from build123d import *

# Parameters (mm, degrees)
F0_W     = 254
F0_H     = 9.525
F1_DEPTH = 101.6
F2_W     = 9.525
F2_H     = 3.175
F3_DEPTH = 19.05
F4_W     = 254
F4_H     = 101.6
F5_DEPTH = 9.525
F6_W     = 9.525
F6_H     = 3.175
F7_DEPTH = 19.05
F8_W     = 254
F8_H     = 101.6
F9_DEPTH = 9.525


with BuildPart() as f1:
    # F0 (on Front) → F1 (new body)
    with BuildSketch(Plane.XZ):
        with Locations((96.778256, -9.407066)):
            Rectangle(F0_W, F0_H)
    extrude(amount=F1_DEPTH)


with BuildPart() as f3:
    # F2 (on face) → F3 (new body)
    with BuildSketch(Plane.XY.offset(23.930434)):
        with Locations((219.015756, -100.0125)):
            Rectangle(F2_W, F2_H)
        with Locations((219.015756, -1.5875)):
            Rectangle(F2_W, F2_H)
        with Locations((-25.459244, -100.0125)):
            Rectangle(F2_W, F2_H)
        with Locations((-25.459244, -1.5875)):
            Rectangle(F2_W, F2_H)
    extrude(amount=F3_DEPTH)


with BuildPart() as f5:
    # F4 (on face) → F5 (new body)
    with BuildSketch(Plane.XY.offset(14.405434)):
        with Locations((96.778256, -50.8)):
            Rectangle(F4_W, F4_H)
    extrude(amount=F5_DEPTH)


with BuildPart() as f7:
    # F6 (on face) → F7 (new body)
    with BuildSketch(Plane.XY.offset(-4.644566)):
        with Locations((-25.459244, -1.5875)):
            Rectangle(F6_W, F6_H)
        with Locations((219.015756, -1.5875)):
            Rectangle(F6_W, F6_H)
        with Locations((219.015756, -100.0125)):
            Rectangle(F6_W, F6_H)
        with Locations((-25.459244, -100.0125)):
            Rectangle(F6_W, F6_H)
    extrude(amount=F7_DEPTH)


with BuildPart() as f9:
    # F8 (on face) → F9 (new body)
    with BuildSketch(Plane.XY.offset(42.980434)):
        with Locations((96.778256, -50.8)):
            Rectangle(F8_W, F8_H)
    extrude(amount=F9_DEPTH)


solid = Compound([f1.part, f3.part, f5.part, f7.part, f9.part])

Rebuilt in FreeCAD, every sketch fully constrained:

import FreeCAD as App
import Part
import Sketcher
from FreeCAD import Vector
Q = App.Units.Quantity

doc = App.newDocument("Part")
body = doc.addObject("PartDesign::Body", "Body")

# Sketch on XZ plane
sketch1 = body.newObject("Sketcher::SketchObject", "Sketch")
sketch1.AttachmentSupport = (doc.getObject("XZ_Plane"), [""])
sketch1.MapMode = "FlatFace"
sketch1.addGeometry(Part.LineSegment(Vector(-30, -5, 0), Vector(-30, -14, 0)), False)
sketch1.addGeometry(Part.LineSegment(Vector(-30, -14, 0), Vector(224, -14, 0)), False)
sketch1.addGeometry(Part.LineSegment(Vector(224, -14, 0), Vector(224, -5, 0)), False)
sketch1.addGeometry(Part.LineSegment(Vector(224, -5, 0), Vector(-30, -5, 0)), False)
sketch1.addConstraint(Sketcher.Constraint("Coincident", 0, 2, 1, 1))
sketch1.addConstraint(Sketcher.Constraint("Coincident", 1, 2, 2, 1))
sketch1.addConstraint(Sketcher.Constraint("Coincident", 2, 2, 3, 1))
sketch1.addConstraint(Sketcher.Constraint("Coincident", 3, 2, 0, 1))
sketch1.addConstraint(Sketcher.Constraint("Vertical", 0))
sketch1.addConstraint(Sketcher.Constraint("Horizontal", 1))
sketch1.addConstraint(Sketcher.Constraint("Vertical", 2))
sketch1.addConstraint(Sketcher.Constraint("Horizontal", 3))
sketch1.addConstraint(Sketcher.Constraint("DistanceX", 1, 1, 1, 2, Q("10 in")))
sketch1.addConstraint(Sketcher.Constraint("DistanceY", 0, 2, 0, 1, Q("0.375 in")))
sketch1.addConstraint(Sketcher.Constraint("DistanceX", 0, 2, -1, 1, Q("30.221744 mm")))
sketch1.addConstraint(Sketcher.Constraint("DistanceY", 0, 2, -1, 1, Q("14.169566 mm")))
pad1 = body.newObject("PartDesign::Pad", "Pad")
pad1.Profile = sketch1
pad1.Length = Q("4 in")
body2 = doc.addObject("PartDesign::Body", "Body001")
body2.AllowCompound = True

# Sketch on XY plane
sketch2 = body2.newObject("Sketcher::SketchObject", "Sketch001")
sketch2.AttachmentSupport = (doc.getObject("XY_Plane001"), [""])
sketch2.MapMode = "FlatFace"
sketch2.AttachmentOffset = App.Placement(Vector(0, 0, 23.930434), App.Rotation())
sketch2.addGeometry(Part.LineSegment(Vector(214.3, -98.4, 0), Vector(214.3, -101.6, 0)), False)
sketch2.addGeometry(Part.LineSegment(Vector(214.3, -101.6, 0), Vector(223.8, -101.6, 0)), False)
sketch2.addGeometry(Part.LineSegment(Vector(223.8, -101.6, 0), Vector(223.8, -98.4, 0)), False)
sketch2.addGeometry(Part.LineSegment(Vector(223.8, -98.4, 0), Vector(214.3, -98.4, 0)), False)
sketch2.addGeometry(Part.LineSegment(Vector(214.3, 0, 0), Vector(214.3, -3.2, 0)), False)
sketch2.addGeometry(Part.LineSegment(Vector(214.3, -3.2, 0), Vector(223.8, -3.2, 0)), False)
sketch2.addGeometry(Part.LineSegment(Vector(223.8, -3.2, 0), Vector(223.8, 0, 0)), False)
sketch2.addGeometry(Part.LineSegment(Vector(223.8, 0, 0), Vector(214.3, 0, 0)), False)
sketch2.addGeometry(Part.LineSegment(Vector(-30.2, -98.4, 0), Vector(-30.2, -101.6, 0)), False)
sketch2.addGeometry(Part.LineSegment(Vector(-30.2, -101.6, 0), Vector(-20.7, -101.6, 0)), False)
sketch2.addGeometry(Part.LineSegment(Vector(-20.7, -101.6, 0), Vector(-20.7, -98.4, 0)), False)
sketch2.addGeometry(Part.LineSegment(Vector(-20.7, -98.4, 0), Vector(-30.2, -98.4, 0)), False)
sketch2.addGeometry(Part.LineSegment(Vector(-30.2, 0, 0), Vector(-30.2, -3.2, 0)), False)
sketch2.addGeometry(Part.LineSegment(Vector(-30.2, -3.2, 0), Vector(-20.7, -3.2, 0)), False)
sketch2.addGeometry(Part.LineSegment(Vector(-20.7, -3.2, 0), Vector(-20.7, 0, 0)), False)
sketch2.addGeometry(Part.LineSegment(Vector(-20.7, 0, 0), Vector(-30.2, 0, 0)), False)
sketch2.addConstraint(Sketcher.Constraint("Coincident", 0, 2, 1, 1))
sketch2.addConstraint(Sketcher.Constraint("Coincident", 1, 2, 2, 1))
sketch2.addConstraint(Sketcher.Constraint("Coincident", 2, 2, 3, 1))
sketch2.addConstraint(Sketcher.Constraint("Coincident", 3, 2, 0, 1))
sketch2.addConstraint(Sketcher.Constraint("Coincident", 4, 2, 5, 1))
sketch2.addConstraint(Sketcher.Constraint("Coincident", 5, 2, 6, 1))
sketch2.addConstraint(Sketcher.Constraint("Coincident", 6, 2, 7, 1))
sketch2.addConstraint(Sketcher.Constraint("Coincident", 7, 2, 4, 1))
sketch2.addConstraint(Sketcher.Constraint("Coincident", 8, 2, 9, 1))
sketch2.addConstraint(Sketcher.Constraint("Coincident", 9, 2, 10, 1))
sketch2.addConstraint(Sketcher.Constraint("Coincident", 10, 2, 11, 1))
sketch2.addConstraint(Sketcher.Constraint("Coincident", 11, 2, 8, 1))
sketch2.addConstraint(Sketcher.Constraint("Coincident", 12, 2, 13, 1))
sketch2.addConstraint(Sketcher.Constraint("Coincident", 13, 2, 14, 1))
sketch2.addConstraint(Sketcher.Constraint("Coincident", 14, 2, 15, 1))
sketch2.addConstraint(Sketcher.Constraint("Coincident", 15, 2, 12, 1))
sketch2.addConstraint(Sketcher.Constraint("Vertical", 0))
sketch2.addConstraint(Sketcher.Constraint("Horizontal", 1))
sketch2.addConstraint(Sketcher.Constraint("Vertical", 2))
sketch2.addConstraint(Sketcher.Constraint("Horizontal", 3))
sketch2.addConstraint(Sketcher.Constraint("Vertical", 4))
sketch2.addConstraint(Sketcher.Constraint("Horizontal", 5))
sketch2.addConstraint(Sketcher.Constraint("Vertical", 6))
sketch2.addConstraint(Sketcher.Constraint("Horizontal", 7))
sketch2.addConstraint(Sketcher.Constraint("Vertical", 8))
sketch2.addConstraint(Sketcher.Constraint("Horizontal", 9))
sketch2.addConstraint(Sketcher.Constraint("Vertical", 10))
sketch2.addConstraint(Sketcher.Constraint("Horizontal", 11))
sketch2.addConstraint(Sketcher.Constraint("Vertical", 12))
sketch2.addConstraint(Sketcher.Constraint("Horizontal", 13))
sketch2.addConstraint(Sketcher.Constraint("Vertical", 14))
sketch2.addConstraint(Sketcher.Constraint("Horizontal", 15))
sketch2.addConstraint(Sketcher.Constraint("PointOnObject", 6, 2, -1))
sketch2.addConstraint(Sketcher.Constraint("PointOnObject", 14, 2, -1))
sketch2.addConstraint(Sketcher.Constraint("Horizontal", 1, 2, 8, 2))
sketch2.addConstraint(Sketcher.Constraint("Horizontal", 3, 2, 10, 2))
sketch2.addConstraint(Sketcher.Constraint("Horizontal", 5, 2, 12, 2))
sketch2.addConstraint(Sketcher.Constraint("Vertical", 3, 2, 4, 2))
sketch2.addConstraint(Sketcher.Constraint("Vertical", 2, 2, 5, 2))
sketch2.addConstraint(Sketcher.Constraint("Vertical", 11, 2, 12, 2))
sketch2.addConstraint(Sketcher.Constraint("Vertical", 10, 2, 13, 2))
sketch2.addConstraint(Sketcher.Constraint("Equal", 7, 9))
sketch2.addConstraint(Sketcher.Constraint("Equal", 2, 4))
sketch2.addConstraint(Sketcher.Constraint("DistanceY", 0, 2, -1, 1, Q("4 in")))
sketch2.addConstraint(Sketcher.Constraint("DistanceX", 8, 2, 1, 2, Q("10 in")))
sketch2.addConstraint(Sketcher.Constraint("DistanceX", 1, 1, 1, 2, Q("0.375 in")))
sketch2.addConstraint(Sketcher.Constraint("DistanceY", 0, 2, 0, 1, Q("0.125 in")))
sketch2.addConstraint(Sketcher.Constraint("DistanceX", -1, 1, 0, 2, Q("214.253256 mm")))
pad2 = body2.newObject("PartDesign::Pad", "Pad001")
pad2.Profile = sketch2
pad2.Length = Q("0.75 in")
body3 = doc.addObject("PartDesign::Body", "Body002")

# Sketch on XY plane
sketch3 = body3.newObject("Sketcher::SketchObject", "Sketch002")
sketch3.AttachmentSupport = (doc.getObject("XY_Plane002"), [""])
sketch3.MapMode = "FlatFace"
sketch3.AttachmentOffset = App.Placement(Vector(0, 0, 14.405434), App.Rotation())
sketch3.addGeometry(Part.LineSegment(Vector(-30, 0, 0), Vector(-30, -102, 0)), False)
sketch3.addGeometry(Part.LineSegment(Vector(-30, -102, 0), Vector(224, -102, 0)), False)
sketch3.addGeometry(Part.LineSegment(Vector(224, -102, 0), Vector(224, 0, 0)), False)
sketch3.addGeometry(Part.LineSegment(Vector(224, 0, 0), Vector(-30, 0, 0)), False)
sketch3.addConstraint(Sketcher.Constraint("Coincident", 0, 2, 1, 1))
sketch3.addConstraint(Sketcher.Constraint("Coincident", 1, 2, 2, 1))
sketch3.addConstraint(Sketcher.Constraint("Coincident", 2, 2, 3, 1))
sketch3.addConstraint(Sketcher.Constraint("Coincident", 3, 2, 0, 1))
sketch3.addConstraint(Sketcher.Constraint("Vertical", 0))
sketch3.addConstraint(Sketcher.Constraint("Horizontal", 1))
sketch3.addConstraint(Sketcher.Constraint("Vertical", 2))
sketch3.addConstraint(Sketcher.Constraint("Horizontal", 3))
sketch3.addConstraint(Sketcher.Constraint("PointOnObject", 2, 2, -1))
sketch3.addConstraint(Sketcher.Constraint("DistanceX", 1, 1, 1, 2, Q("10 in")))
sketch3.addConstraint(Sketcher.Constraint("DistanceY", 0, 2, 0, 1, Q("4 in")))
sketch3.addConstraint(Sketcher.Constraint("DistanceX", 0, 2, -1, 1, Q("30.221744 mm")))
pad3 = body3.newObject("PartDesign::Pad", "Pad002")
pad3.Profile = sketch3
pad3.Length = Q("0.375 in")
body4 = doc.addObject("PartDesign::Body", "Body003")
body4.AllowCompound = True

# Sketch on XY plane
sketch4 = body4.newObject("Sketcher::SketchObject", "Sketch003")
sketch4.AttachmentSupport = (doc.getObject("XY_Plane003"), [""])
sketch4.MapMode = "FlatFace"
sketch4.AttachmentOffset = App.Placement(Vector(0, 0, -4.644566), App.Rotation())
sketch4.addGeometry(Part.LineSegment(Vector(-30.2, 0, 0), Vector(-30.2, -3.2, 0)), False)
sketch4.addGeometry(Part.LineSegment(Vector(-30.2, -3.2, 0), Vector(-20.7, -3.2, 0)), False)
sketch4.addGeometry(Part.LineSegment(Vector(-20.7, -3.2, 0), Vector(-20.7, 0, 0)), False)
sketch4.addGeometry(Part.LineSegment(Vector(-20.7, 0, 0), Vector(-30.2, 0, 0)), False)
sketch4.addGeometry(Part.LineSegment(Vector(214.3, 0, 0), Vector(214.3, -3.2, 0)), False)
sketch4.addGeometry(Part.LineSegment(Vector(214.3, -3.2, 0), Vector(223.8, -3.2, 0)), False)
sketch4.addGeometry(Part.LineSegment(Vector(223.8, -3.2, 0), Vector(223.8, 0, 0)), False)
sketch4.addGeometry(Part.LineSegment(Vector(223.8, 0, 0), Vector(214.3, 0, 0)), False)
sketch4.addGeometry(Part.LineSegment(Vector(214.3, -98.4, 0), Vector(214.3, -101.6, 0)), False)
sketch4.addGeometry(Part.LineSegment(Vector(214.3, -101.6, 0), Vector(223.8, -101.6, 0)), False)
sketch4.addGeometry(Part.LineSegment(Vector(223.8, -101.6, 0), Vector(223.8, -98.4, 0)), False)
sketch4.addGeometry(Part.LineSegment(Vector(223.8, -98.4, 0), Vector(214.3, -98.4, 0)), False)
sketch4.addGeometry(Part.LineSegment(Vector(-30.2, -98.4, 0), Vector(-30.2, -101.6, 0)), False)
sketch4.addGeometry(Part.LineSegment(Vector(-30.2, -101.6, 0), Vector(-20.7, -101.6, 0)), False)
sketch4.addGeometry(Part.LineSegment(Vector(-20.7, -101.6, 0), Vector(-20.7, -98.4, 0)), False)
sketch4.addGeometry(Part.LineSegment(Vector(-20.7, -98.4, 0), Vector(-30.2, -98.4, 0)), False)
sketch4.addConstraint(Sketcher.Constraint("Coincident", 0, 2, 1, 1))
sketch4.addConstraint(Sketcher.Constraint("Coincident", 1, 2, 2, 1))
sketch4.addConstraint(Sketcher.Constraint("Coincident", 2, 2, 3, 1))
sketch4.addConstraint(Sketcher.Constraint("Coincident", 3, 2, 0, 1))
sketch4.addConstraint(Sketcher.Constraint("Coincident", 4, 2, 5, 1))
sketch4.addConstraint(Sketcher.Constraint("Coincident", 5, 2, 6, 1))
sketch4.addConstraint(Sketcher.Constraint("Coincident", 6, 2, 7, 1))
sketch4.addConstraint(Sketcher.Constraint("Coincident", 7, 2, 4, 1))
sketch4.addConstraint(Sketcher.Constraint("Coincident", 8, 2, 9, 1))
sketch4.addConstraint(Sketcher.Constraint("Coincident", 9, 2, 10, 1))
sketch4.addConstraint(Sketcher.Constraint("Coincident", 10, 2, 11, 1))
sketch4.addConstraint(Sketcher.Constraint("Coincident", 11, 2, 8, 1))
sketch4.addConstraint(Sketcher.Constraint("Coincident", 12, 2, 13, 1))
sketch4.addConstraint(Sketcher.Constraint("Coincident", 13, 2, 14, 1))
sketch4.addConstraint(Sketcher.Constraint("Coincident", 14, 2, 15, 1))
sketch4.addConstraint(Sketcher.Constraint("Coincident", 15, 2, 12, 1))
sketch4.addConstraint(Sketcher.Constraint("Vertical", 0))
sketch4.addConstraint(Sketcher.Constraint("Horizontal", 1))
sketch4.addConstraint(Sketcher.Constraint("Vertical", 2))
sketch4.addConstraint(Sketcher.Constraint("Horizontal", 3))
sketch4.addConstraint(Sketcher.Constraint("Vertical", 4))
sketch4.addConstraint(Sketcher.Constraint("Horizontal", 5))
sketch4.addConstraint(Sketcher.Constraint("Vertical", 6))
sketch4.addConstraint(Sketcher.Constraint("Horizontal", 7))
sketch4.addConstraint(Sketcher.Constraint("Vertical", 8))
sketch4.addConstraint(Sketcher.Constraint("Horizontal", 9))
sketch4.addConstraint(Sketcher.Constraint("Vertical", 10))
sketch4.addConstraint(Sketcher.Constraint("Horizontal", 11))
sketch4.addConstraint(Sketcher.Constraint("Vertical", 12))
sketch4.addConstraint(Sketcher.Constraint("Horizontal", 13))
sketch4.addConstraint(Sketcher.Constraint("Vertical", 14))
sketch4.addConstraint(Sketcher.Constraint("Horizontal", 15))
sketch4.addConstraint(Sketcher.Constraint("PointOnObject", 2, 2, -1))
sketch4.addConstraint(Sketcher.Constraint("PointOnObject", 6, 2, -1))
sketch4.addConstraint(Sketcher.Constraint("Horizontal", 1, 2, 4, 2))
sketch4.addConstraint(Sketcher.Constraint("Horizontal", 9, 2, 12, 2))
sketch4.addConstraint(Sketcher.Constraint("Horizontal", 11, 2, 14, 2))
sketch4.addConstraint(Sketcher.Constraint("Vertical", 7, 2, 8, 2))
sketch4.addConstraint(Sketcher.Constraint("Vertical", 6, 2, 9, 2))
sketch4.addConstraint(Sketcher.Constraint("Vertical", 3, 2, 12, 2))
sketch4.addConstraint(Sketcher.Constraint("Vertical", 2, 2, 13, 2))
sketch4.addConstraint(Sketcher.Constraint("Equal", 3, 5))
sketch4.addConstraint(Sketcher.Constraint("Equal", 6, 8))
sketch4.addConstraint(Sketcher.Constraint("DistanceY", 8, 2, -1, 1, Q("4 in")))
sketch4.addConstraint(Sketcher.Constraint("DistanceX", 0, 2, 5, 2, Q("10 in")))
sketch4.addConstraint(Sketcher.Constraint("DistanceX", 1, 1, 1, 2, Q("0.375 in")))
sketch4.addConstraint(Sketcher.Constraint("DistanceY", 0, 2, 0, 1, Q("0.125 in")))
sketch4.addConstraint(Sketcher.Constraint("DistanceX", 0, 2, -1, 1, Q("30.221744 mm")))
pad4 = body4.newObject("PartDesign::Pad", "Pad003")
pad4.Profile = sketch4
pad4.Length = Q("0.75 in")
body5 = doc.addObject("PartDesign::Body", "Body004")

# Sketch on XY plane
sketch5 = body5.newObject("Sketcher::SketchObject", "Sketch004")
sketch5.AttachmentSupport = (doc.getObject("XY_Plane004"), [""])
sketch5.MapMode = "FlatFace"
sketch5.AttachmentOffset = App.Placement(Vector(0, 0, 42.980434), App.Rotation())
sketch5.addGeometry(Part.LineSegment(Vector(-30, 0, 0), Vector(-30, -102, 0)), False)
sketch5.addGeometry(Part.LineSegment(Vector(-30, -102, 0), Vector(224, -102, 0)), False)
sketch5.addGeometry(Part.LineSegment(Vector(224, -102, 0), Vector(224, 0, 0)), False)
sketch5.addGeometry(Part.LineSegment(Vector(224, 0, 0), Vector(-30, 0, 0)), False)
sketch5.addConstraint(Sketcher.Constraint("Coincident", 0, 2, 1, 1))
sketch5.addConstraint(Sketcher.Constraint("Coincident", 1, 2, 2, 1))
sketch5.addConstraint(Sketcher.Constraint("Coincident", 2, 2, 3, 1))
sketch5.addConstraint(Sketcher.Constraint("Coincident", 3, 2, 0, 1))
sketch5.addConstraint(Sketcher.Constraint("Vertical", 0))
sketch5.addConstraint(Sketcher.Constraint("Horizontal", 1))
sketch5.addConstraint(Sketcher.Constraint("Vertical", 2))
sketch5.addConstraint(Sketcher.Constraint("Horizontal", 3))
sketch5.addConstraint(Sketcher.Constraint("PointOnObject", 2, 2, -1))
sketch5.addConstraint(Sketcher.Constraint("DistanceX", 1, 1, 1, 2, Q("10 in")))
sketch5.addConstraint(Sketcher.Constraint("DistanceY", 0, 2, 0, 1, Q("4 in")))
sketch5.addConstraint(Sketcher.Constraint("DistanceX", 0, 2, -1, 1, Q("30.221744 mm")))
pad5 = body5.newObject("PartDesign::Pad", "Pad004")
pad5.Profile = sketch5
pad5.Length = Q("0.375 in")

doc.recompute()
